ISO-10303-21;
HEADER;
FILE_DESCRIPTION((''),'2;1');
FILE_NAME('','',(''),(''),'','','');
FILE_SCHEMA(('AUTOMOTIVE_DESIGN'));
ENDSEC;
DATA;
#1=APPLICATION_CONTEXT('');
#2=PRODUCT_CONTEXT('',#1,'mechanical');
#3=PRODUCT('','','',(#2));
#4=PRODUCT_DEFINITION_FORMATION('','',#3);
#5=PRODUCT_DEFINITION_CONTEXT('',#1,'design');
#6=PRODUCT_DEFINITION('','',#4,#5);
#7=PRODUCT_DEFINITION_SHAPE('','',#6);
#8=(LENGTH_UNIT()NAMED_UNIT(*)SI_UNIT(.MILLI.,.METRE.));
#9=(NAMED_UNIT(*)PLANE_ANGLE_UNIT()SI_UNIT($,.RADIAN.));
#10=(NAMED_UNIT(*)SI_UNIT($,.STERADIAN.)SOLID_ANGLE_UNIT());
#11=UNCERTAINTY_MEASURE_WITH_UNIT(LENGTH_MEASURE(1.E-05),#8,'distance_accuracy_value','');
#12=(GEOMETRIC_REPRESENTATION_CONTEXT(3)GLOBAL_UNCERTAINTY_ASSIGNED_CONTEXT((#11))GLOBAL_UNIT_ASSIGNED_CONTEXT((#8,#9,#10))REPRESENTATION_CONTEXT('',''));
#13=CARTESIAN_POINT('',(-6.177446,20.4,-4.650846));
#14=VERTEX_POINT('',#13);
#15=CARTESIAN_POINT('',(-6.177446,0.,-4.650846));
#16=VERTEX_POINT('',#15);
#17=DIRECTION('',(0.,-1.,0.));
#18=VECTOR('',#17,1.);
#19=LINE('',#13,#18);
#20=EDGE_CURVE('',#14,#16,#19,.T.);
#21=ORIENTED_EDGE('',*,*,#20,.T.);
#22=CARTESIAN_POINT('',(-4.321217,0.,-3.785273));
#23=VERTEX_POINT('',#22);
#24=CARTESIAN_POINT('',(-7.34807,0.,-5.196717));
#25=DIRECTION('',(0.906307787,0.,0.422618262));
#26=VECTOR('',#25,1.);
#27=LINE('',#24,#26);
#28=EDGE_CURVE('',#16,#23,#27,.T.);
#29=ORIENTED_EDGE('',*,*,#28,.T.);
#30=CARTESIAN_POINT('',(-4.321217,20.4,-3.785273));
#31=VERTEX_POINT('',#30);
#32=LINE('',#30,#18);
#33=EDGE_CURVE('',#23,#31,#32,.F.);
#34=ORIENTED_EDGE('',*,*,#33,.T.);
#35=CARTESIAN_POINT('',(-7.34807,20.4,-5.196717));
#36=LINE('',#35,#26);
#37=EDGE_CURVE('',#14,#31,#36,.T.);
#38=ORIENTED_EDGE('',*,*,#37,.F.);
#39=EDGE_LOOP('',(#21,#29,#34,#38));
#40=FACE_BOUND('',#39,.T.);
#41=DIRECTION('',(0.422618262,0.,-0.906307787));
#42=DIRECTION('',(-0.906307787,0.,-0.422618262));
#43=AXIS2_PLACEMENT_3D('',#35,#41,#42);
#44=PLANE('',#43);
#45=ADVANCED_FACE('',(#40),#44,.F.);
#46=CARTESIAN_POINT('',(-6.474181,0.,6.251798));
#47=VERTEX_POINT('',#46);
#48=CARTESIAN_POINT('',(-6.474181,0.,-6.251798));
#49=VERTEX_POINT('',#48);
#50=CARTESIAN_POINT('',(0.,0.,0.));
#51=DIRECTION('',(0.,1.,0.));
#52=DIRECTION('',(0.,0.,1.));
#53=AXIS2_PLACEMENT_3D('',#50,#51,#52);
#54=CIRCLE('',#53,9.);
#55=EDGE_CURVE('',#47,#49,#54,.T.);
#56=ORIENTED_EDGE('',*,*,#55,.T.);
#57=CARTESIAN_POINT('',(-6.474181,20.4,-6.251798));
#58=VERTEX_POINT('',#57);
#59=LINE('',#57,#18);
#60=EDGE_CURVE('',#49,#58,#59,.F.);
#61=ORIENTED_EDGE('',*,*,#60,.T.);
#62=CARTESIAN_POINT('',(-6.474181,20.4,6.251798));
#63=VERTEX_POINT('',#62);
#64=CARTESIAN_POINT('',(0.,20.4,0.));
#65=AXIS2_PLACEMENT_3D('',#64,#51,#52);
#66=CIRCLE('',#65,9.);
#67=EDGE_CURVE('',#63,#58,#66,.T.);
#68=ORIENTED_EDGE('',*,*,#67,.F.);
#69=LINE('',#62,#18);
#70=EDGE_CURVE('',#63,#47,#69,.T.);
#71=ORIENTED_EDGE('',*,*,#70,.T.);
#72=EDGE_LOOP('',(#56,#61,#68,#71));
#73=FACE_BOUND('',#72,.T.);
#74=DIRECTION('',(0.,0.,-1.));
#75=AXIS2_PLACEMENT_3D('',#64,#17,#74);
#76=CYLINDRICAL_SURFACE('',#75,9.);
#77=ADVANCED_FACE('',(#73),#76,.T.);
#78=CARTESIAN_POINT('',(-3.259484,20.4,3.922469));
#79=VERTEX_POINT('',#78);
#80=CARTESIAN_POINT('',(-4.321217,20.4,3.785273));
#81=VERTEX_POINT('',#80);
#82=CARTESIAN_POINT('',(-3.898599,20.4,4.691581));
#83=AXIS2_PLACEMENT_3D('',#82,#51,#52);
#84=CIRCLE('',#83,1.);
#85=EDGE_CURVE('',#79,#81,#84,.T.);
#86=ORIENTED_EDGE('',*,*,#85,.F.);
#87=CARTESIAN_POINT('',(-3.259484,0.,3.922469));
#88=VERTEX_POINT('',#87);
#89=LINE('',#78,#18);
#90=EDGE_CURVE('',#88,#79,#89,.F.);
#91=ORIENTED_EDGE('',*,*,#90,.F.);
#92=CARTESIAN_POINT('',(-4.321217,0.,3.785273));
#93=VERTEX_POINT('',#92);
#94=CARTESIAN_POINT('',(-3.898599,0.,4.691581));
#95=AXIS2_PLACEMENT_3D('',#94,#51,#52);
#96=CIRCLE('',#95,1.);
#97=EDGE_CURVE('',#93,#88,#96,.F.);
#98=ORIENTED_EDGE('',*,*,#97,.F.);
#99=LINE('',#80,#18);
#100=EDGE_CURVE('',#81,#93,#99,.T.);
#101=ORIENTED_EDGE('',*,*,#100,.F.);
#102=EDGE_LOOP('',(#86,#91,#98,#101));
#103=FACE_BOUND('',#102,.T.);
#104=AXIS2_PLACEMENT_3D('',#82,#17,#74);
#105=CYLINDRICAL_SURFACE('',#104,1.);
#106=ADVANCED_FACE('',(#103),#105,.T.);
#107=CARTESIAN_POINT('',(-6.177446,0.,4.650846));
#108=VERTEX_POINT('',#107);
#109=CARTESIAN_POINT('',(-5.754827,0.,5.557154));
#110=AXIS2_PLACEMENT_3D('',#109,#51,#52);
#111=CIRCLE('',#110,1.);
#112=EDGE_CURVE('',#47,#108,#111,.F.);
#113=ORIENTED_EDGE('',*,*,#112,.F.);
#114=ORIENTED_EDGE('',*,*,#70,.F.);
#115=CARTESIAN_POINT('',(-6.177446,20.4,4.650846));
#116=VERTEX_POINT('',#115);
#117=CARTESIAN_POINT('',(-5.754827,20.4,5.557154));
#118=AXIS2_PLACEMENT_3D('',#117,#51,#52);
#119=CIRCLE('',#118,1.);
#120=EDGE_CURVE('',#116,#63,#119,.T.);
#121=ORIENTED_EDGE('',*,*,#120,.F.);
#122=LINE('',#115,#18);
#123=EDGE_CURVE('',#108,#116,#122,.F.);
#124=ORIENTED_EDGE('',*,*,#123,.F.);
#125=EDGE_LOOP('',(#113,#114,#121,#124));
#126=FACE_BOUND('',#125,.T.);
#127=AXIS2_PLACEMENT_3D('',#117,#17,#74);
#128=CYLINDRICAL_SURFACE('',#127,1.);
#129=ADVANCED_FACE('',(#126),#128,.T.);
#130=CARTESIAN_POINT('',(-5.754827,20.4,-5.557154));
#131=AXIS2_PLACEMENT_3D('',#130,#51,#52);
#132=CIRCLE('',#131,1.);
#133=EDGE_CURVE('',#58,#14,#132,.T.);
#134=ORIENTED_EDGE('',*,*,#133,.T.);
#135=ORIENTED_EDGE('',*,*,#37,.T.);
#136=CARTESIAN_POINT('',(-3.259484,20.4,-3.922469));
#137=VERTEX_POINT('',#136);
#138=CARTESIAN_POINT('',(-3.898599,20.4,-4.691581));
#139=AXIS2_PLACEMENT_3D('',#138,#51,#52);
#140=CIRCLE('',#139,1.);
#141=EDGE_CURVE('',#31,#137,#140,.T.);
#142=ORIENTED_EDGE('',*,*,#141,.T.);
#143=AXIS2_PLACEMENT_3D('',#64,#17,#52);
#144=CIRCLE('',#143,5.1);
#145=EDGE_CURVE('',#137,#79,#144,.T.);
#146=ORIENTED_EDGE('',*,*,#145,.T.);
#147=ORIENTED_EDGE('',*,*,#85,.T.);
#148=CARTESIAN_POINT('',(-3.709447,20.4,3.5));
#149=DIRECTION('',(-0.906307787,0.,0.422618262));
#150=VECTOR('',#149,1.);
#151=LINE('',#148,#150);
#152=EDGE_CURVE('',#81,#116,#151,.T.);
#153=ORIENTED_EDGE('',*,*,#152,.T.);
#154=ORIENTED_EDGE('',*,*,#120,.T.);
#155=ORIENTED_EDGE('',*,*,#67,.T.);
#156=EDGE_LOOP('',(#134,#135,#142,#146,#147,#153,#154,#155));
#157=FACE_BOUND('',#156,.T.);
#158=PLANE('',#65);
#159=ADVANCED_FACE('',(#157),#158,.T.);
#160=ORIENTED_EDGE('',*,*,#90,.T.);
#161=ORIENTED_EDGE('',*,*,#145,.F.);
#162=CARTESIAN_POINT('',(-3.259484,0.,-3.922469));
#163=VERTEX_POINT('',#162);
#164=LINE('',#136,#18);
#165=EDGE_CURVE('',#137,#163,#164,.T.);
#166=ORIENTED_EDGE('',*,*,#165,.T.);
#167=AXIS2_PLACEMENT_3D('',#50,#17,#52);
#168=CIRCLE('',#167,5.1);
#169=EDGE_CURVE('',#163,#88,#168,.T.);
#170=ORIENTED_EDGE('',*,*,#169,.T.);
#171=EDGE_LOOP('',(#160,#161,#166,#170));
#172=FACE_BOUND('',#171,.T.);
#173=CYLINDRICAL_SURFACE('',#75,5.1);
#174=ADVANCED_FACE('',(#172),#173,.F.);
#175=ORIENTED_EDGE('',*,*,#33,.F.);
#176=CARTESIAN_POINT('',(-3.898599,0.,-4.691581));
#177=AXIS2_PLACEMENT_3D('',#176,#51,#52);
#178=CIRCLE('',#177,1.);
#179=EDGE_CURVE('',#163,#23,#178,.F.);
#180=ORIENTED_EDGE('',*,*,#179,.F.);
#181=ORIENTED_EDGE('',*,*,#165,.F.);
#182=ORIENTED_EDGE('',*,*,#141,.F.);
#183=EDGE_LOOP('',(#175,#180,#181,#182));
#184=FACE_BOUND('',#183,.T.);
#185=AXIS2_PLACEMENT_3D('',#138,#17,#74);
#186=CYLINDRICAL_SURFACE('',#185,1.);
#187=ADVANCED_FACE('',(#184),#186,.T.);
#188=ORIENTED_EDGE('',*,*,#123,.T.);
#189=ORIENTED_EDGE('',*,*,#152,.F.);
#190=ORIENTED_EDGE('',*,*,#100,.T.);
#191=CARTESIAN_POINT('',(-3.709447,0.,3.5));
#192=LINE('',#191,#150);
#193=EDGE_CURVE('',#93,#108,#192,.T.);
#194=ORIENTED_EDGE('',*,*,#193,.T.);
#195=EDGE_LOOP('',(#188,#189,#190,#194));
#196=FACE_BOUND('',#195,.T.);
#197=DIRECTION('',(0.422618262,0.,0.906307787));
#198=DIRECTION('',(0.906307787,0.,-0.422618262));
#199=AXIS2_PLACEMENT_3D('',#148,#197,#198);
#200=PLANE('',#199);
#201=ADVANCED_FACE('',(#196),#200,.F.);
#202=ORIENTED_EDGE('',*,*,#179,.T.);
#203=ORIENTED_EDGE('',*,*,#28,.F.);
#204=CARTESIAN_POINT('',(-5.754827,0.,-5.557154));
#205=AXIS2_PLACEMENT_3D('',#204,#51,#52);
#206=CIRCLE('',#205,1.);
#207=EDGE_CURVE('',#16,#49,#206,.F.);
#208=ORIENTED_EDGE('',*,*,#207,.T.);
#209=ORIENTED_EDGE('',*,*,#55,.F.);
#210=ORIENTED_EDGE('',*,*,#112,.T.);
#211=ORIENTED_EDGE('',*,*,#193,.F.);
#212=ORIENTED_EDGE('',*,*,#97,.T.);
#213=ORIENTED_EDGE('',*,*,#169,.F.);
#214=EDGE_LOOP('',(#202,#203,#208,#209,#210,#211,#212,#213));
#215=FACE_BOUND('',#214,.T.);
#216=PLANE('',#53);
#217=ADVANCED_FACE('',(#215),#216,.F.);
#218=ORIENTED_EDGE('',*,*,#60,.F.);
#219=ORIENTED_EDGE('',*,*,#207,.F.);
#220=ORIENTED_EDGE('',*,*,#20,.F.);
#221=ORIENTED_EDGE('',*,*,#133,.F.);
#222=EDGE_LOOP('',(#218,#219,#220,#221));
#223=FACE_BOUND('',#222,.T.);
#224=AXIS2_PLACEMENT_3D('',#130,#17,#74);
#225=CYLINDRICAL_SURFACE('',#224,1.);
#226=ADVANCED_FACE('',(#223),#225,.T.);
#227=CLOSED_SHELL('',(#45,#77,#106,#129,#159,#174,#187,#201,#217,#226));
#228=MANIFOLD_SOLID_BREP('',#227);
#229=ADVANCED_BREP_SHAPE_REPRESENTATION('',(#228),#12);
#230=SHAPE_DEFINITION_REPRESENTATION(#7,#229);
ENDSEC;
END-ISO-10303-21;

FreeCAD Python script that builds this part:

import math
import FreeCAD as App
import Part
import Sketcher
from FreeCAD import Vector
Q = App.Units.Quantity


def edges_at(feature, points):
    """Names of the edges that pass closest to the given points."""
    edges = feature.Shape.Edges
    near = lambda p: min(range(len(edges)), key=lambda i: edges[i].distToShape(Part.Vertex(*p))[0])
    return sorted({f"Edge{near(p) + 1}" for p in points})

doc = App.newDocument("Part")
params = doc.addObject("Spreadsheet::Sheet", "Params")
for row, (alias, value) in enumerate([
    ("sketch1_radius", "9 mm"),
    ("sketch1_radius2", "5.1 mm"),
    ("pad1_length", "20.4 mm"),
    ("fillet_radius", "1 mm"),
], start=1):
    params.set(f"A{row}", alias)
    params.set(f"B{row}", "=" + value)
    params.setAlias(f"B{row}", alias)

body = doc.addObject("PartDesign::Body", "Body")

# Sketch on XZ plane
sketch1 = body.newObject("Sketcher::SketchObject", "Sketch")
sketch1.AttachmentSupport = (doc.getObject("XZ_Plane"), [""])
sketch1.MapMode = "FlatFace"
sketch1.addGeometry([
    Part.LineSegment(Vector(-3.709447, 3.5, 0), Vector(-7.34807, 5.196717, 0)),
    Part.ArcOfCircle(Part.Circle(Vector(0, 0, 0), Vector(0, 0, 1), 9), math.radians(-144.731205), math.radians(144.731205)),
    Part.LineSegment(Vector(-7.34807, -5.196717, 0), Vector(-3.709447, -3.5, 0)),
    Part.ArcOfCircle(Part.Circle(Vector(0, 0, 0), Vector(0, 0, 1), 5.1), math.radians(-136.664077), math.radians(136.664077)),
], False)
sketch1.addConstraint([
    Sketcher.Constraint("Coincident", 0, 2, 1, 2),
    Sketcher.Constraint("Coincident", 1, 1, 2, 1),
    Sketcher.Constraint("Coincident", 2, 2, 3, 1),
    Sketcher.Constraint("Coincident", 3, 2, 0, 1),
    Sketcher.Constraint("Coincident", 1, 3, -1, 1),
    Sketcher.Constraint("Coincident", 3, 3, -1, 1),
    Sketcher.Constraint("Vertical", 0, 2, 1, 1),
    Sketcher.Constraint("Vertical", 2, 2, 3, 2),
    Sketcher.Constraint("Radius", 1, Q("9 mm")),
    Sketcher.Constraint("Radius", 3, Q("5.1 mm")),
    Sketcher.Constraint("Angle", 0, Q("155 deg")),
    Sketcher.Constraint("DistanceY", 2, 2, 3, 2, Q("7 mm")),
])
sketch1.setExpression("Constraints[8]", "Params.sketch1_radius")
sketch1.setExpression("Constraints[9]", "Params.sketch1_radius2")
pad1 = body.newObject("PartDesign::Pad", "Pad")
pad1.Profile = sketch1
pad1.setExpression("Length", "Params.pad1_length")
pad1.Reversed = True
doc.recompute()

fillet = body.newObject("PartDesign::Fillet", "Fillet")
fillet.Base = (pad1, edges_at(pad1, [
    (-3.709, 10.2, -3.5),
    (-7.348, 10.2, -5.197),
    (-7.348, 10.2, 5.197),
    (-3.709, 10.2, 3.5),
]))
fillet.setExpression("Radius", "Params.fillet_radius")

doc.recompute()
